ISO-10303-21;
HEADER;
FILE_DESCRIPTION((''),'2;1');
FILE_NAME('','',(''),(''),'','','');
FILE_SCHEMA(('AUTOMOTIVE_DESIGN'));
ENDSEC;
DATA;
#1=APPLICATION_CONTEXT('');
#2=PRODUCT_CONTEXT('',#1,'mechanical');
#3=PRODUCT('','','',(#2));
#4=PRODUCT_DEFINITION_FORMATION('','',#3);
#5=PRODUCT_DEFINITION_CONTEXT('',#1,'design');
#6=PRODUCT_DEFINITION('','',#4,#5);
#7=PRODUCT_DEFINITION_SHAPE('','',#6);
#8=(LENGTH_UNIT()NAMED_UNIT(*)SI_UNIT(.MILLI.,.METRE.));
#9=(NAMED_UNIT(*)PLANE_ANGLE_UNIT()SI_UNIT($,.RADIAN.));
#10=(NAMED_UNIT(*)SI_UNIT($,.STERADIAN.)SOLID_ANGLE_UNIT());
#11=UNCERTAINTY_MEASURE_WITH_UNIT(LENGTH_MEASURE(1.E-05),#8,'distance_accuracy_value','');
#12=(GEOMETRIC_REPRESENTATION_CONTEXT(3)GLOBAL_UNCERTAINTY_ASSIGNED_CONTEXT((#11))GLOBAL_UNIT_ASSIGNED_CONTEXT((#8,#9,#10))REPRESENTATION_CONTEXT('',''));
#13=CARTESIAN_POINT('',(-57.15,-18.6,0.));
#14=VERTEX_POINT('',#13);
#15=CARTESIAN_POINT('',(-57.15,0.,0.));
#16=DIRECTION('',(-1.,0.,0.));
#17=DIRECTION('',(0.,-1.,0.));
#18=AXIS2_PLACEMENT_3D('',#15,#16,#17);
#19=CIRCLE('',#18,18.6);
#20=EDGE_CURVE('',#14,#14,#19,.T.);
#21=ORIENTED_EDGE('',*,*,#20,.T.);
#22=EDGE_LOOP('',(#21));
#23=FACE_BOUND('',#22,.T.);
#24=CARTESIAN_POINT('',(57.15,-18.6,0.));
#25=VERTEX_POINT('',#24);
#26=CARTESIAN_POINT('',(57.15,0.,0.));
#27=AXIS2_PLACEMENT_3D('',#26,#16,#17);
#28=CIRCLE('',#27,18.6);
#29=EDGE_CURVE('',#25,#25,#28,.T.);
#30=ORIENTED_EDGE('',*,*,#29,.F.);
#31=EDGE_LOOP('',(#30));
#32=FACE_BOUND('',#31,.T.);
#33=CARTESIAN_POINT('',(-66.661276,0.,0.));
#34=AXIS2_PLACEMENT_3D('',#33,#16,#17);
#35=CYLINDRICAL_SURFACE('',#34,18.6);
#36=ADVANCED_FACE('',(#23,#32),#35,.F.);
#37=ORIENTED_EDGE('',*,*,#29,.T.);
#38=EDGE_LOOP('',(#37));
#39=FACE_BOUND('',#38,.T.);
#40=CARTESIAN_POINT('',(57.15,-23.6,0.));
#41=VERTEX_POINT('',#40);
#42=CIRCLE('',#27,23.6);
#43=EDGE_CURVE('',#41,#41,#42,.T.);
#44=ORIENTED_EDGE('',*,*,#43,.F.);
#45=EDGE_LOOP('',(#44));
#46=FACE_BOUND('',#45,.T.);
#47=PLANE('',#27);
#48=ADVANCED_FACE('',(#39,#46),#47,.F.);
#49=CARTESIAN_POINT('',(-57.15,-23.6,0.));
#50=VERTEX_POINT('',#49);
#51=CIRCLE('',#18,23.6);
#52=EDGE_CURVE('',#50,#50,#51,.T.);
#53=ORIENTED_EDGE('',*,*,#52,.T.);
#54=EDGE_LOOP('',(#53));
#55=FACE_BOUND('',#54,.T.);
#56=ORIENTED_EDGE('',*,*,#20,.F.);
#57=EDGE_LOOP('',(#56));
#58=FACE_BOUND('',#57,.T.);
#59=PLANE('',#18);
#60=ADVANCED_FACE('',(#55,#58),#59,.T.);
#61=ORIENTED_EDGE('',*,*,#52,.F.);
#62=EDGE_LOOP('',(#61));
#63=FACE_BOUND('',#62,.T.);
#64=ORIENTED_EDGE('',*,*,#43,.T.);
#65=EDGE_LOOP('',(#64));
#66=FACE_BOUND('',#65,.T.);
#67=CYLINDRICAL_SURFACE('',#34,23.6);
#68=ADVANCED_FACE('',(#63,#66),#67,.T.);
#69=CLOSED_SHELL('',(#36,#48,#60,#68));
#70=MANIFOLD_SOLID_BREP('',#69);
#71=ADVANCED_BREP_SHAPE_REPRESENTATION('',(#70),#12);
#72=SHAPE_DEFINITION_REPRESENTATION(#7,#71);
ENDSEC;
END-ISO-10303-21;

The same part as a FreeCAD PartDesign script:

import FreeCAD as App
import Part
import Sketcher

V = App.Vector

doc = App.newDocument("Part")
body = doc.addObject("PartDesign::Body", "Body")

# Sketch on XY plane
sketch1 = doc.addObject("Sketcher::SketchObject", "Sketch")
body.addObject(sketch1)
sketch1.AttachmentSupport = (doc.XY_Plane, [""])
sketch1.MapMode = "FlatFace"
sketch1.addGeometry(Part.LineSegment(V(-57, 24, 0), V(-57, 19, 0)), False)
sketch1.addGeometry(Part.LineSegment(V(-57, 19, 0), V(57, 19, 0)), False)
sketch1.addGeometry(Part.LineSegment(V(57, 19, 0), V(57, 24, 0)), False)
sketch1.addGeometry(Part.LineSegment(V(57, 24, 0), V(-57, 24, 0)), False)
sketch1.addConstraint(Sketcher.Constraint("Coincident", 0, 2, 1, 1))
sketch1.addConstraint(Sketcher.Constraint("Coincident", 1, 2, 2, 1))
sketch1.addConstraint(Sketcher.Constraint("Coincident", 2, 2, 3, 1))
sketch1.addConstraint(Sketcher.Constraint("Coincident", 3, 2, 0, 1))
sketch1.addConstraint(Sketcher.Constraint("Vertical", 0))
sketch1.addConstraint(Sketcher.Constraint("Horizontal", 1))
sketch1.addConstraint(Sketcher.Constraint("Vertical", 2))
sketch1.addConstraint(Sketcher.Constraint("Horizontal", 3))
sketch1.addConstraint(Sketcher.Constraint("DistanceY", 0, 2, 0, 1, 5.0))
sketch1.addConstraint(Sketcher.Constraint("DistanceX", 1, 1, 1, 2, 114.3))
sketch1.addConstraint(Sketcher.Constraint("DistanceY", -1, 1, 0, 2, 18.6))
sketch1.addConstraint(Sketcher.Constraint("DistanceX", 0, 2, -1, 1, 57.15))
revolution = doc.addObject("PartDesign::Revolution", "Revolution")
body.addObject(revolution)
revolution.Profile = sketch1
revolution.ReferenceAxis = (sketch1, ["H_Axis"])
revolution.Angle = 360

doc.recompute()
